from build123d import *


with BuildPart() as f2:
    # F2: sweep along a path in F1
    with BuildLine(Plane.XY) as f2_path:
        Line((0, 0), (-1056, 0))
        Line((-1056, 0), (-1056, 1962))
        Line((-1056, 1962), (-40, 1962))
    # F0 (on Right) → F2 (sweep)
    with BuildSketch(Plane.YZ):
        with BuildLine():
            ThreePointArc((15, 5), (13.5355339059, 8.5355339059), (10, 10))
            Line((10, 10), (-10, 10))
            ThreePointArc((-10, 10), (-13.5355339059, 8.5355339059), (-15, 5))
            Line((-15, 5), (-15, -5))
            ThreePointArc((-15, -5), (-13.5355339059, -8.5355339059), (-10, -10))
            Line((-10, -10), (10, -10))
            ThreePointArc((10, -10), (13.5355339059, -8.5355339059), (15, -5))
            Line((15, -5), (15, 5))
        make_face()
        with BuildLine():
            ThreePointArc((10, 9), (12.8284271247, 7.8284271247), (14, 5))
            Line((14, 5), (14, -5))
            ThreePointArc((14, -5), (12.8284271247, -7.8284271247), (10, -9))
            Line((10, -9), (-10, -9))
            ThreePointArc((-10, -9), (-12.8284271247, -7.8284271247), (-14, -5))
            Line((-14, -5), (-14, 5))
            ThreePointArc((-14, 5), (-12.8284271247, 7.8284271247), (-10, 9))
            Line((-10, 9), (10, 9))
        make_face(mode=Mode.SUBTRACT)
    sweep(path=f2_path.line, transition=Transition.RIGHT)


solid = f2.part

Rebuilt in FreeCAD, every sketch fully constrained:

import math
import FreeCAD as App
import Part
import Sketcher

doc = App.newDocument("Part")
body = doc.addObject("PartDesign::Body", "Body")

sketch1 = body.newObject("Sketcher::SketchObject", "Sketch")
sketch1.AttachmentSupport = (doc.getObject("YZ_Plane"), [""])
sketch1.MapMode = "FlatFace"
sketch1.addGeometry(Part.ArcOfCircle(Part.Circle(App.Vector(10, 5, 0), App.Vector(0, 0, 1), 5), math.radians(0), math.radians(90)), False)
sketch1.addGeometry(Part.LineSegment(App.Vector(10, 10, 0), App.Vector(-10, 10, 0)), False)
sketch1.addGeometry(Part.ArcOfCircle(Part.Circle(App.Vector(-10, 5, 0), App.Vector(0, 0, 1), 5), math.radians(90), math.radians(180)), False)
sketch1.addGeometry(Part.LineSegment(App.Vector(-15, 5, 0), App.Vector(-15, -5, 0)), False)
sketch1.addGeometry(Part.ArcOfCircle(Part.Circle(App.Vector(-10, -5, 0), App.Vector(0, 0, 1), 5), math.radians(180), math.radians(270)), False)
sketch1.addGeometry(Part.LineSegment(App.Vector(-10, -10, 0), App.Vector(10, -10, 0)), False)
sketch1.addGeometry(Part.ArcOfCircle(Part.Circle(App.Vector(10, -5, 0), App.Vector(0, 0, 1), 5), math.radians(-90), math.radians(0)), False)
sketch1.addGeometry(Part.LineSegment(App.Vector(15, -5, 0), App.Vector(15, 5, 0)), False)
sketch1.addGeometry(Part.LineSegment(App.Vector(-10, 9, 0), App.Vector(10, 9, 0)), False)
sketch1.addGeometry(Part.ArcOfCircle(Part.Circle(App.Vector(10, 5, 0), App.Vector(0, 0, 1), 4), math.radians(0), math.radians(90)), False)
sketch1.addGeometry(Part.LineSegment(App.Vector(14, 5, 0), App.Vector(14, -5, 0)), False)
sketch1.addGeometry(Part.ArcOfCircle(Part.Circle(App.Vector(10, -5, 0), App.Vector(0, 0, 1), 4), math.radians(-90), math.radians(0)), False)
sketch1.addGeometry(Part.LineSegment(App.Vector(10, -9, 0), App.Vector(-10, -9, 0)), False)
sketch1.addGeometry(Part.ArcOfCircle(Part.Circle(App.Vector(-10, -5, 0), App.Vector(0, 0, 1), 4), math.radians(180), math.radians(270)), False)
sketch1.addGeometry(Part.LineSegment(App.Vector(-14, -5, 0), App.Vector(-14, 5, 0)), False)
sketch1.addGeometry(Part.ArcOfCircle(Part.Circle(App.Vector(-10, 5, 0), App.Vector(0, 0, 1), 4), math.radians(90), math.radians(180)), False)
sketch1.addConstraint(Sketcher.Constraint("Tangent", 0, 2, 1, 1))
sketch1.addConstraint(Sketcher.Constraint("Tangent", 1, 2, 2, 1))
sketch1.addConstraint(Sketcher.Constraint("Tangent", 2, 2, 3, 1))
sketch1.addConstraint(Sketcher.Constraint("Tangent", 3, 2, 4, 1))
sketch1.addConstraint(Sketcher.Constraint("Tangent", 4, 2, 5, 1))
sketch1.addConstraint(Sketcher.Constraint("Tangent", 5, 2, 6, 1))
sketch1.addConstraint(Sketcher.Constraint("Tangent", 6, 2, 7, 1))
sketch1.addConstraint(Sketcher.Constraint("Tangent", 7, 2, 0, 1))
sketch1.addConstraint(Sketcher.Constraint("Tangent", 8, 2, 9, 2))
sketch1.addConstraint(Sketcher.Constraint("Tangent", 9, 1, 10, 1))
sketch1.addConstraint(Sketcher.Constraint("Tangent", 10, 2, 11, 2))
sketch1.addConstraint(Sketcher.Constraint("Tangent", 11, 1, 12, 1))
sketch1.addConstraint(Sketcher.Constraint("Tangent", 12, 2, 13, 2))
sketch1.addConstraint(Sketcher.Constraint("Tangent", 13, 1, 14, 1))
sketch1.addConstraint(Sketcher.Constraint("Tangent", 14, 2, 15, 2))
sketch1.addConstraint(Sketcher.Constraint("Tangent", 15, 1, 8, 1))
sketch1.addConstraint(Sketcher.Constraint("Horizontal", 1))
sketch1.addConstraint(Sketcher.Constraint("Vertical", 3))
sketch1.addConstraint(Sketcher.Constraint("Horizontal", 5))
sketch1.addConstraint(Sketcher.Constraint("Vertical", 7))
sketch1.addConstraint(Sketcher.Constraint("Horizontal", 8))
sketch1.addConstraint(Sketcher.Constraint("Vertical", 10))
sketch1.addConstraint(Sketcher.Constraint("Horizontal", 12))
sketch1.addConstraint(Sketcher.Constraint("Vertical", 14))
sketch1.addConstraint(Sketcher.Constraint("Coincident", 9, 3, 0, 3))
sketch1.addConstraint(Sketcher.Constraint("Coincident", 11, 3, 6, 3))
sketch1.addConstraint(Sketcher.Constraint("Coincident", 13, 3, 4, 3))
sketch1.addConstraint(Sketcher.Constraint("Equal", 0, 2))
sketch1.addConstraint(Sketcher.Constraint("Equal", 2, 4))
sketch1.addConstraint(Sketcher.Constraint("Equal", 4, 6))
sketch1.addConstraint(Sketcher.Constraint("Equal", 13, 15))
sketch1.addConstraint(Sketcher.Constraint("Symmetric", 0, 3, 4, 3, -1, 1))
sketch1.addConstraint(Sketcher.Constraint("Radius", 0, 5.0))
sketch1.addConstraint(Sketcher.Constraint("Radius", 9, 4.0))
sketch1.addConstraint(Sketcher.Constraint("DistanceX", 1, 2, 1, 1, 20.0))
sketch1.addConstraint(Sketcher.Constraint("DistanceY", 3, 2, 3, 1, 10.0))

sketch2 = body.newObject("Sketcher::SketchObject", "Sketch001")
sketch2.AttachmentSupport = (doc.getObject("XY_Plane"), [""])
sketch2.MapMode = "FlatFace"
sketch2.addGeometry(Part.LineSegment(App.Vector(0, 0, 0), App.Vector(-1056, 0, 0)), False)
sketch2.addGeometry(Part.LineSegment(App.Vector(-1056, 0, 0), App.Vector(-1056, 1962, 0)), False)
sketch2.addGeometry(Part.LineSegment(App.Vector(-1056, 1962, 0), App.Vector(-40, 1962, 0)), False)
sketch2.addConstraint(Sketcher.Constraint("Coincident", 0, 2, 1, 1))
sketch2.addConstraint(Sketcher.Constraint("Coincident", 1, 2, 2, 1))
sketch2.addConstraint(Sketcher.Constraint("Horizontal", 0))
sketch2.addConstraint(Sketcher.Constraint("Vertical", 1))
sketch2.addConstraint(Sketcher.Constraint("Horizontal", 2))
sketch2.addConstraint(Sketcher.Constraint("Coincident", 0, 1, -1, 1))
sketch2.addConstraint(Sketcher.Constraint("DistanceX", 0, 2, 0, 1, 1056.0))
sketch2.addConstraint(Sketcher.Constraint("DistanceX", 2, 1, 2, 2, 1016.0))
sketch2.addConstraint(Sketcher.Constraint("DistanceY", 1, 1, 1, 2, 1962.0))
doc.recompute()

additivepipe = body.newObject("PartDesign::AdditivePipe", "AdditivePipe")
additivepipe.Profile = sketch1
additivepipe.Spine = (sketch2, ["Edge1", "Edge2", "Edge3"])
additivepipe.Transition = "Right corner"

doc.recompute()
